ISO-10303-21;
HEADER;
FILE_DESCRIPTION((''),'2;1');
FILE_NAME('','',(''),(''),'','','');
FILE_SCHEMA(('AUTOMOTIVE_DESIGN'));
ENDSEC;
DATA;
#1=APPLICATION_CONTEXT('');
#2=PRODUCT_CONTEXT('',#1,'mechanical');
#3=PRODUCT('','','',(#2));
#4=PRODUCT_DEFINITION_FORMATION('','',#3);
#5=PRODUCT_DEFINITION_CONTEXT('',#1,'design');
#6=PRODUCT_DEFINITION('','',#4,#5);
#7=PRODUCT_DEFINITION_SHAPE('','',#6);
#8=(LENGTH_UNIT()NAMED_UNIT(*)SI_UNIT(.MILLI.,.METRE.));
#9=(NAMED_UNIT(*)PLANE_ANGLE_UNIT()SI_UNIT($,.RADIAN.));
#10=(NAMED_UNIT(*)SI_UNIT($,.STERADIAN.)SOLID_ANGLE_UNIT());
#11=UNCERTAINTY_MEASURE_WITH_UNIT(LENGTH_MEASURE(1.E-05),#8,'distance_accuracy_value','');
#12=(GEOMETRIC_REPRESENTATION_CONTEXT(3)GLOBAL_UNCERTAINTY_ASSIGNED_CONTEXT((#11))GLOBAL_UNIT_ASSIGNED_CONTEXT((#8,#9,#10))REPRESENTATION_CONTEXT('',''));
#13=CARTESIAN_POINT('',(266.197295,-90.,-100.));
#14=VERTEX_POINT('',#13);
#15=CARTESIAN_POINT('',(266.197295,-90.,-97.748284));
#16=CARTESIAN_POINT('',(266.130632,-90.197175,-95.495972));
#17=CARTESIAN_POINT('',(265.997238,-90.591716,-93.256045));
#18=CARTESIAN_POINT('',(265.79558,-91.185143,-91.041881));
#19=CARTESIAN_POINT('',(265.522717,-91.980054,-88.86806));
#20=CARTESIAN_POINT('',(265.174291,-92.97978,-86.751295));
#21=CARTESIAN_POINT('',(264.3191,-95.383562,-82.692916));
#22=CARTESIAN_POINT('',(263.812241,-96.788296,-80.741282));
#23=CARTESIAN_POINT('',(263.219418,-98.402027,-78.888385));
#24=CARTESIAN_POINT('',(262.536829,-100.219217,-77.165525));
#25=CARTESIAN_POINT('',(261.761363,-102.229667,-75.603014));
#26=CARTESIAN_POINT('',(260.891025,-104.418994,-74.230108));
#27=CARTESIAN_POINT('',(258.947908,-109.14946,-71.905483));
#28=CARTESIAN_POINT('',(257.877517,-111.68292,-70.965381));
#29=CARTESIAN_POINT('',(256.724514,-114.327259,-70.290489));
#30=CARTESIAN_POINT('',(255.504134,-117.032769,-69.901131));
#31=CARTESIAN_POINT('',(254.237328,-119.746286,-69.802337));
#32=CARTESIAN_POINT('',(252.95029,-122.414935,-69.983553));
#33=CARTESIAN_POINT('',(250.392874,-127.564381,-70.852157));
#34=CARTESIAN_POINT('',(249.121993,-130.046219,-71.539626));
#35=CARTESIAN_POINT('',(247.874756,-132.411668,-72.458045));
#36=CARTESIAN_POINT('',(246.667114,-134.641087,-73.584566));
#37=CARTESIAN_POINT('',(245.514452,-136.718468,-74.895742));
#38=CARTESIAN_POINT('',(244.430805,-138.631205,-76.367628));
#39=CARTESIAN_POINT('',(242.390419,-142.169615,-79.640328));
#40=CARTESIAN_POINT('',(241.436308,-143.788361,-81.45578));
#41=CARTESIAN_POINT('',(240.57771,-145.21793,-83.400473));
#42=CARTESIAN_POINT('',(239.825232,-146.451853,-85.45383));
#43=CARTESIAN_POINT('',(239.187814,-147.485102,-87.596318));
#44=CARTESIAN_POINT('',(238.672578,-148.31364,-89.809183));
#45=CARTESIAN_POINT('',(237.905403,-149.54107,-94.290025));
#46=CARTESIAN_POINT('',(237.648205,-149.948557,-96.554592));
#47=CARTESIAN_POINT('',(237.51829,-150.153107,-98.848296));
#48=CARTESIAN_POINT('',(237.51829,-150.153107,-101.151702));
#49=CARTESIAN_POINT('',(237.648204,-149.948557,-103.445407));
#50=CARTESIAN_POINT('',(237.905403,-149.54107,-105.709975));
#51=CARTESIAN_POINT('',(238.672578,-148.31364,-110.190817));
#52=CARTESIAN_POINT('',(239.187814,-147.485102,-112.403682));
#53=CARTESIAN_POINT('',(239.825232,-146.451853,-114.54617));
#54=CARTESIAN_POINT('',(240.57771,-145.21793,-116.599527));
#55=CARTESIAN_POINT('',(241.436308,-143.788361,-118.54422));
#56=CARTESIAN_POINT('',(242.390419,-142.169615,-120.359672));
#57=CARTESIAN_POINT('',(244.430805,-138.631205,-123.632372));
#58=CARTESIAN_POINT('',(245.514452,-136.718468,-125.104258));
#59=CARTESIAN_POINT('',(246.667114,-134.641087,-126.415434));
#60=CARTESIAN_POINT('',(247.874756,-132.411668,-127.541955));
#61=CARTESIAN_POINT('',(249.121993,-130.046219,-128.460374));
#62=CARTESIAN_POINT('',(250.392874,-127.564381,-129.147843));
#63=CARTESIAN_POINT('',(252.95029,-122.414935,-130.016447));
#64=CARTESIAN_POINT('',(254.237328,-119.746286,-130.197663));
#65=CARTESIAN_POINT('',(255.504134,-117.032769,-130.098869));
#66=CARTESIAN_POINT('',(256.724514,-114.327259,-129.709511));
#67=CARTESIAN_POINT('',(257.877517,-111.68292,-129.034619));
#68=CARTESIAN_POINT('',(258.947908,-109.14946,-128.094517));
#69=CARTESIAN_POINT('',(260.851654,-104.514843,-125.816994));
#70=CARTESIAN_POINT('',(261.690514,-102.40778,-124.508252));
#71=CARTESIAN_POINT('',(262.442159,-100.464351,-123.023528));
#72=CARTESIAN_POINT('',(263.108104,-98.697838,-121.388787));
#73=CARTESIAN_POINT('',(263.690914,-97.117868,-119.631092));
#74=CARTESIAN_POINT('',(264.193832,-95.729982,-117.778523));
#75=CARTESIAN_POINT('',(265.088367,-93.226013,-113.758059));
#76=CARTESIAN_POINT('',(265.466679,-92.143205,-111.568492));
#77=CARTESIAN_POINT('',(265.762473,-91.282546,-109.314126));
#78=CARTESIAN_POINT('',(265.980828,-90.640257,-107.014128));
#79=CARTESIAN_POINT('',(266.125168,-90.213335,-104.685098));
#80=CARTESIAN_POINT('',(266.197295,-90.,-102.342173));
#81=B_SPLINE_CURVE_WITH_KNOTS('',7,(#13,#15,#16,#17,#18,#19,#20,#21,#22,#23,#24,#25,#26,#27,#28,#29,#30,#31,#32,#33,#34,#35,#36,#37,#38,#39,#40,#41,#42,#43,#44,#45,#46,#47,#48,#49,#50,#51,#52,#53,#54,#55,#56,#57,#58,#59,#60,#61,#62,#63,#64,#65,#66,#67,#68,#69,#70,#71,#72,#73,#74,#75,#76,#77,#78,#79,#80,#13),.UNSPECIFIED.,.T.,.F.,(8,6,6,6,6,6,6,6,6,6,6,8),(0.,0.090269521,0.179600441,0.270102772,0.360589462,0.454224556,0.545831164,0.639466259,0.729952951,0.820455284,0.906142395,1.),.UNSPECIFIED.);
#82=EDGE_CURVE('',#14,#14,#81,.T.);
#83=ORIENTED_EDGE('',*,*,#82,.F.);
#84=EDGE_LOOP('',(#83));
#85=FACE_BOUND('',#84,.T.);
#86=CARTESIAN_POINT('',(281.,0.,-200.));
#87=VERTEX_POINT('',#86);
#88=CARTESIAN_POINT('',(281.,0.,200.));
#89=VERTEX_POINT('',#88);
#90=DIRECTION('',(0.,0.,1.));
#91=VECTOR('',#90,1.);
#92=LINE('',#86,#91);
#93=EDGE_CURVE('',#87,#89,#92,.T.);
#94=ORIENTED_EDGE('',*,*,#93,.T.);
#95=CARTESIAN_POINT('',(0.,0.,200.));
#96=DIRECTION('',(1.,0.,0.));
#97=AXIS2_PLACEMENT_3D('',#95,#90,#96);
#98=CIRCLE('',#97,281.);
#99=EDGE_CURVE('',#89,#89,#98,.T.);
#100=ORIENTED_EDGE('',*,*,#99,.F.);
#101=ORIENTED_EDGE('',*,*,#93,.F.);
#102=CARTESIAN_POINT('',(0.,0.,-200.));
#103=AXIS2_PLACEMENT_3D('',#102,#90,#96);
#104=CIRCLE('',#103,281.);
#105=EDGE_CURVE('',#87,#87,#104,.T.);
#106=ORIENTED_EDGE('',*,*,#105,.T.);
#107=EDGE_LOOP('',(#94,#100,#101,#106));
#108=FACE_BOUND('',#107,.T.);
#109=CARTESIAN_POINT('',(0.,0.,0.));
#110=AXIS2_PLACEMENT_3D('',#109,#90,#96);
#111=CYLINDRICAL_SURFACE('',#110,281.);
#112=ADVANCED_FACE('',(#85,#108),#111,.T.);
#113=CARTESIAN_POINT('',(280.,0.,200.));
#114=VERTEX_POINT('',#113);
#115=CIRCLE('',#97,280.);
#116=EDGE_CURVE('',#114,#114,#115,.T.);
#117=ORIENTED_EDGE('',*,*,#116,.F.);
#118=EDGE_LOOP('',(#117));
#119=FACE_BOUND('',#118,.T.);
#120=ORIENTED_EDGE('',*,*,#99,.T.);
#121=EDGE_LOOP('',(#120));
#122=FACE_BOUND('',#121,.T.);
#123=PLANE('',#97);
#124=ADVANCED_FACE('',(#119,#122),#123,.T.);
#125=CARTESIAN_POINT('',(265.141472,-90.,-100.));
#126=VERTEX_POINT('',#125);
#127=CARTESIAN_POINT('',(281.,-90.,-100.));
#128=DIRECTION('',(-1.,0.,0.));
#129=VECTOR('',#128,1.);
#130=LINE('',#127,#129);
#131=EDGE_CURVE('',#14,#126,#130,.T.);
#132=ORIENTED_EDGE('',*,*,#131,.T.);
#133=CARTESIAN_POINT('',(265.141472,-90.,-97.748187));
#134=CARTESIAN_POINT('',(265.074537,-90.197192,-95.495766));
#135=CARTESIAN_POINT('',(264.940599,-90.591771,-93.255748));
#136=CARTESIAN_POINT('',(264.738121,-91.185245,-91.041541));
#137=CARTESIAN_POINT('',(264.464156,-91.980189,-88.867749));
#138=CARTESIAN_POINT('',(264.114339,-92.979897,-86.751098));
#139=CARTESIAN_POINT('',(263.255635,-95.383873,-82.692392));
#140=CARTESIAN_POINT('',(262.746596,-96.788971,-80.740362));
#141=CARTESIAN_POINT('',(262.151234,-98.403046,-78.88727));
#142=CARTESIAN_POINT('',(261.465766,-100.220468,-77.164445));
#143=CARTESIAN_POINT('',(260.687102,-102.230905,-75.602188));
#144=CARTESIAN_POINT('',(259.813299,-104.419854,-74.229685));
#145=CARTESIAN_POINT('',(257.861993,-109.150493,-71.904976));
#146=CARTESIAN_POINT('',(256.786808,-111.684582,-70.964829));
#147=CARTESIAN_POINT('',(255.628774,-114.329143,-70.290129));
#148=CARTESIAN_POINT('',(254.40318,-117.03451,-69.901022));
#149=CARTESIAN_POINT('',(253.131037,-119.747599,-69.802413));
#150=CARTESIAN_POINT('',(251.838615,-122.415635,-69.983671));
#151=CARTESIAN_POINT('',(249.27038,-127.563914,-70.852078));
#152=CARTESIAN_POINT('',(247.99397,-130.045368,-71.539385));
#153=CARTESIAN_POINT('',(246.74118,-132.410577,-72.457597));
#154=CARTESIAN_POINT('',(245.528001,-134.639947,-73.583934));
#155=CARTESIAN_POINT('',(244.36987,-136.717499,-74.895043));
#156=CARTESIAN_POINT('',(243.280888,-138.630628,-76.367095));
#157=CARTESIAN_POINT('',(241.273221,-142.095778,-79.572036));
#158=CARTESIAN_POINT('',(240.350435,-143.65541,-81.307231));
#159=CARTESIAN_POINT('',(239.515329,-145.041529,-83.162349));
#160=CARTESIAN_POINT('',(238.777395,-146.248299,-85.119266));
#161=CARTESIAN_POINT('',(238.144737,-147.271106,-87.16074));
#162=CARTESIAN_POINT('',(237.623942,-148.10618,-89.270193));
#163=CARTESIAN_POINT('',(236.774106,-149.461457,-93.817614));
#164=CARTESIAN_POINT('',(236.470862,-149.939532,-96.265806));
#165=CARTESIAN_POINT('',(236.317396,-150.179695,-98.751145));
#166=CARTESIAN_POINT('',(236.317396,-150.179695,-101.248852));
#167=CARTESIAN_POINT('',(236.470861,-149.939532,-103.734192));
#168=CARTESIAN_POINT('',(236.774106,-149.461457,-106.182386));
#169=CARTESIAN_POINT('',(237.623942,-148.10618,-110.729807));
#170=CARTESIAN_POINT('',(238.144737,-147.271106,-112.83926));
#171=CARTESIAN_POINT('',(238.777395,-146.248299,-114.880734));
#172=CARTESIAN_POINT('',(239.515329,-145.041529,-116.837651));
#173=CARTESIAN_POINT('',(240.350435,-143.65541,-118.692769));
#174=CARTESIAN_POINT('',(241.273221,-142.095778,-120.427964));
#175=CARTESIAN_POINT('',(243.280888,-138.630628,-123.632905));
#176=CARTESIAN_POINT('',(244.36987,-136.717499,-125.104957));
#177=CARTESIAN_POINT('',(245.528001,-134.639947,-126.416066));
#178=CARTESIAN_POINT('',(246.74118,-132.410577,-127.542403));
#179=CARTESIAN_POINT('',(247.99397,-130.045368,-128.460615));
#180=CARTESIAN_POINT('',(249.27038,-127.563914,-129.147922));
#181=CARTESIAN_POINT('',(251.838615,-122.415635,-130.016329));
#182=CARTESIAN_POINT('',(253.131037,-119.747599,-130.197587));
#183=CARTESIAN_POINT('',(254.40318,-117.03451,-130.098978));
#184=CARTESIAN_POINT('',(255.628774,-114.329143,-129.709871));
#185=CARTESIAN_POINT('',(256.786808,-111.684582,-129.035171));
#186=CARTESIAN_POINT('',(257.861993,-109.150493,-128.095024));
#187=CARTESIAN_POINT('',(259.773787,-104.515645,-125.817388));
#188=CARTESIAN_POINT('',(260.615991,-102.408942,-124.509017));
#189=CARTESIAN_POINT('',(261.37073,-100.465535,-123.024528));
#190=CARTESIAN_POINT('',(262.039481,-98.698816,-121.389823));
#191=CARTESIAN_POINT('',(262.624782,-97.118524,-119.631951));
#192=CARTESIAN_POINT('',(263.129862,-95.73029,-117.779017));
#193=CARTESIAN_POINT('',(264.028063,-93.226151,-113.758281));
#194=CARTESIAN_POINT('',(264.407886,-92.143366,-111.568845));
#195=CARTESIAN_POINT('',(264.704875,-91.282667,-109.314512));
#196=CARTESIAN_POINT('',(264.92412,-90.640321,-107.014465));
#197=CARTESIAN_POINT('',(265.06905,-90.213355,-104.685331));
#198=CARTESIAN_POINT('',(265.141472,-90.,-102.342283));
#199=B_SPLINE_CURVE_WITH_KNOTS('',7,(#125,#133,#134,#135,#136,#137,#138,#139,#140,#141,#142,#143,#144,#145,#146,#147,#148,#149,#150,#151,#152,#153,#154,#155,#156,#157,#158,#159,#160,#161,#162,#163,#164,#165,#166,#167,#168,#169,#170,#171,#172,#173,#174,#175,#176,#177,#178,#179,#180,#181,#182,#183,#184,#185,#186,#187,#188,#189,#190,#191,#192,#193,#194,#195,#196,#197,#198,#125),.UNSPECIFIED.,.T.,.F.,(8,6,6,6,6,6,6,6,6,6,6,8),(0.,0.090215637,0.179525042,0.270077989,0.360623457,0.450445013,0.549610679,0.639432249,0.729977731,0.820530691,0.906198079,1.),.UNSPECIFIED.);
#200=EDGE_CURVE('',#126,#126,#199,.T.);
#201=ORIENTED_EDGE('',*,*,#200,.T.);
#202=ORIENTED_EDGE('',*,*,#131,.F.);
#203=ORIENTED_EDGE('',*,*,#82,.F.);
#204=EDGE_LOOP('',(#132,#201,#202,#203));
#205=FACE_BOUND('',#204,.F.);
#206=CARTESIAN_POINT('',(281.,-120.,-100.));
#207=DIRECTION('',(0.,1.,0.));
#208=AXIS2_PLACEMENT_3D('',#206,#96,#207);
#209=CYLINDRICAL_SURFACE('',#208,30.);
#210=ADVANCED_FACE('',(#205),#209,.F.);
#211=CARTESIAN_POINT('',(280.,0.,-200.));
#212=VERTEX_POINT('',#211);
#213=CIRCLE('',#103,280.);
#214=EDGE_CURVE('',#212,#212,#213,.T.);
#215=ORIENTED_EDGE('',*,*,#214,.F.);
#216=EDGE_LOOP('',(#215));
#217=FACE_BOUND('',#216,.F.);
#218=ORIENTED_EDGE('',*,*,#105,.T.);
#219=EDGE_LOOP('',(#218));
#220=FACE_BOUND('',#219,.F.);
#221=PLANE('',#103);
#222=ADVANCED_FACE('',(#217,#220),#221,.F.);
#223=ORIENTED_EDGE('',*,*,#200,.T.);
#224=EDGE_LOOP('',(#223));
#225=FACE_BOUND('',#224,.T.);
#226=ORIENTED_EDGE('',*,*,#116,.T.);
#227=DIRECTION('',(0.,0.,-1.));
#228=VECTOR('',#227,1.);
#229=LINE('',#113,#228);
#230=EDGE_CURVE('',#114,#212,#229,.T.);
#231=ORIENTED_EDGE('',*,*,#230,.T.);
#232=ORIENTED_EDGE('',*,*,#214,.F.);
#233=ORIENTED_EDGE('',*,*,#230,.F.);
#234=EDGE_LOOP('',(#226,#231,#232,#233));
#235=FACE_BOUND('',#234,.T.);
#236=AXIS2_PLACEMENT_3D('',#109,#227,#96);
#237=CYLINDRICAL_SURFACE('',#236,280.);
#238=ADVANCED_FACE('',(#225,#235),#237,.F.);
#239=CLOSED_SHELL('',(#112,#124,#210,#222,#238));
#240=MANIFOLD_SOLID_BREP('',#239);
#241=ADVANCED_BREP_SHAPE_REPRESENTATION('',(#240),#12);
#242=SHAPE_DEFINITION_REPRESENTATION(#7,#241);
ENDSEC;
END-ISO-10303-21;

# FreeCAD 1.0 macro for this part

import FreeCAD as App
import Part
import Sketcher

V = App.Vector

doc = App.newDocument("Part")
body = doc.addObject("PartDesign::Body", "Body")

# Sketch on XY plane
sketch1 = body.newObject("Sketcher::SketchObject", "Sketch")
sketch1.AttachmentSupport = (doc.getObject("XY_Plane"), [""])
sketch1.MapMode = "FlatFace"
sketch1.addGeometry([
    Part.Circle(V(0, 0, 0), V(0, 0, 1), 281),
    Part.Circle(V(0, 0, 0), V(0, 0, 1), 280),
], False)
sketch1.addConstraint([
    Sketcher.Constraint("Coincident", 0, 3, -1, 1),
    Sketcher.Constraint("Coincident", 1, 3, -1, 1),
    Sketcher.Constraint("Diameter", 0, 562.0),
    Sketcher.Constraint("Diameter", 1, 560.0),
])
pad1 = body.newObject("PartDesign::Pad", "Pad")
pad1.Profile = sketch1
pad1.Length = 400
pad1.Midplane = True

# Sketch on YZ plane
sketch2 = body.newObject("Sketcher::SketchObject", "Sketch001")
sketch2.AttachmentSupport = (doc.getObject("YZ_Plane"), [""])
sketch2.MapMode = "FlatFace"
sketch2.AttachmentOffset = App.Placement(V(0, 0, 281), App.Rotation())
sketch2.addGeometry(Part.Circle(V(-120, -100, 0), V(0, 0, 1), 30), False)
sketch2.addConstraint([
    Sketcher.Constraint("Diameter", 0, 60.0),
    Sketcher.Constraint("DistanceX", 0, 3, -1, 1, 120.0),
    Sketcher.Constraint("DistanceY", 0, 3, -1, 1, 100.0),
])
pocket1 = body.newObject("PartDesign::Pocket", "Pocket")
pocket1.Profile = sketch2
pocket1.Length = 300

doc.recompute()
